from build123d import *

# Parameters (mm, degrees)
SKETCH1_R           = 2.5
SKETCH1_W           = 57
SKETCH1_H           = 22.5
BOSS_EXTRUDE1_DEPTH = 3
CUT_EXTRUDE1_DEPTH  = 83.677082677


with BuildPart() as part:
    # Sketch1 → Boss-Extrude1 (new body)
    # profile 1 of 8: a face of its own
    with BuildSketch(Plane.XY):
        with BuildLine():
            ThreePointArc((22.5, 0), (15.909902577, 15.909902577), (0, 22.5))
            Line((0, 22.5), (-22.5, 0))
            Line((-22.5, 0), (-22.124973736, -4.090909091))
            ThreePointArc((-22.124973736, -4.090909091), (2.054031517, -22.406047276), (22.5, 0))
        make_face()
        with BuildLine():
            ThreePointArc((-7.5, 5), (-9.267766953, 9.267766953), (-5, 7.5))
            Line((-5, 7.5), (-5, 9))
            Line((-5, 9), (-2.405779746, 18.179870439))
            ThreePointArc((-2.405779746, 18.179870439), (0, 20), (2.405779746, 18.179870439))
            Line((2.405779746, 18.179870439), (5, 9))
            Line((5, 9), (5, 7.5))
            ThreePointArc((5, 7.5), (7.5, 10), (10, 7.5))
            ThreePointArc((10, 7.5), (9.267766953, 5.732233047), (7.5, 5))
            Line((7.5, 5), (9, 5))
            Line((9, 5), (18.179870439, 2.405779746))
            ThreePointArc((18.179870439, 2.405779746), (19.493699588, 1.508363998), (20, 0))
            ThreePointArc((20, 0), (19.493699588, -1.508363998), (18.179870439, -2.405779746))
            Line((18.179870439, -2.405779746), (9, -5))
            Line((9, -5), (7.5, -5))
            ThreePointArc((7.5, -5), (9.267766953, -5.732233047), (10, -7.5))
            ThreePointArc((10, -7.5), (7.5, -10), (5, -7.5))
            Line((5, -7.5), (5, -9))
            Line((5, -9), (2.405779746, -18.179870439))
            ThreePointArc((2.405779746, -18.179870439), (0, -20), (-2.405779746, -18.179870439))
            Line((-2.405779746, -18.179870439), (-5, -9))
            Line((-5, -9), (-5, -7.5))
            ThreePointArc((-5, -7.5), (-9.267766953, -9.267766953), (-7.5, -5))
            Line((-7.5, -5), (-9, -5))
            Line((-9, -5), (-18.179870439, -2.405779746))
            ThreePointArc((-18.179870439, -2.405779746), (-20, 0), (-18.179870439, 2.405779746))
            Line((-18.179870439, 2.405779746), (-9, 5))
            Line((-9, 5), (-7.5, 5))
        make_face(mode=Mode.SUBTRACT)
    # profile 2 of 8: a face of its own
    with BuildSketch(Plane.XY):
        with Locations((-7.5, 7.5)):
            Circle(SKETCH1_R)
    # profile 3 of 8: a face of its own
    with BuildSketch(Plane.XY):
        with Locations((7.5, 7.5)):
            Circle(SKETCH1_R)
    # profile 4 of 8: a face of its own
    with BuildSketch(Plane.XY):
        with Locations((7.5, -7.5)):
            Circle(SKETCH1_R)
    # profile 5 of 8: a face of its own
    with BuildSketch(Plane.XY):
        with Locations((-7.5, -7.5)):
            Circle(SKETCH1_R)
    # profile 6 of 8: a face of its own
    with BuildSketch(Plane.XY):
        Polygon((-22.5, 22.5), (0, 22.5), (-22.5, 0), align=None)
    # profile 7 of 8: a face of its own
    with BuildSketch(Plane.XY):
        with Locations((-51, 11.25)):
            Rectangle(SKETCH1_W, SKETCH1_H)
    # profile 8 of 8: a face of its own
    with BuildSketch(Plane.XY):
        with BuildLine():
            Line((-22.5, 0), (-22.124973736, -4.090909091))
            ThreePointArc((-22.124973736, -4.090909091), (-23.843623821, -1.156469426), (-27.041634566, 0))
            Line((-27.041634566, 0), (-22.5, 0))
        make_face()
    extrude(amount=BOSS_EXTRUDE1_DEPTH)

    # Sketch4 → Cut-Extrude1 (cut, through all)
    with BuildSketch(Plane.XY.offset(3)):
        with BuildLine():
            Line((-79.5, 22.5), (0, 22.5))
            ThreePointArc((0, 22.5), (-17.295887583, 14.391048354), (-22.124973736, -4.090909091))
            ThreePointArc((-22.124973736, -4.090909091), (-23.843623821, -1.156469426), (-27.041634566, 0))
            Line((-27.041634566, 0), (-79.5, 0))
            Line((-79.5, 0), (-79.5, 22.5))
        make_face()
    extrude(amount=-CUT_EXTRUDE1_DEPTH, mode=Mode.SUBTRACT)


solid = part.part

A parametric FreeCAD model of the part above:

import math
import FreeCAD as App
import Part
import Sketcher
from FreeCAD import Vector

doc = App.newDocument("Part")
body = doc.addObject("PartDesign::Body", "Body")

# Sketch on XY plane
sketch1 = body.newObject("Sketcher::SketchObject", "Sketch")
sketch1.AttachmentSupport = (doc.getObject("XY_Plane"), [""])
sketch1.MapMode = "FlatFace"
sketch1.addGeometry(Part.ArcOfCircle(Part.Circle(Vector(0, 0, 0), Vector(0, 0, 1), 22.5), math.radians(0), math.radians(90)), False)
sketch1.addGeometry(Part.LineSegment(Vector(0, 22.5, 0), Vector(-79.5, 22.5, 0)), False)
sketch1.addGeometry(Part.LineSegment(Vector(-79.5, 22.5, 0), Vector(-79.5, 0, 0)), False)
sketch1.addGeometry(Part.LineSegment(Vector(-79.5, 0, 0), Vector(-27, 0, 0)), False)
sketch1.addGeometry(Part.ArcOfCircle(Part.Circle(Vector(-27, -5, 0), Vector(0, 0, 1), 5), math.radians(10), math.radians(90)), False)
sketch1.addGeometry(Part.ArcOfCircle(Part.Circle(Vector(0, 0, 0), Vector(0, 0, 1), 22.5), math.radians(-170), math.radians(0)), False)
sketch1.addGeometry(Part.LineSegment(Vector(-9, 5, 0), Vector(-7.5, 5, 0)), False)
sketch1.addGeometry(Part.ArcOfCircle(Part.Circle(Vector(-7.5, 7.5, 0), Vector(0, 0, 1), 2.5), math.radians(-90), math.radians(0)), False)
sketch1.addGeometry(Part.LineSegment(Vector(-5, 7.5, 0), Vector(-5, 9, 0)), False)
sketch1.addGeometry(Part.LineSegment(Vector(-5, 9, 0), Vector(-2.4, 18.2, 0)), False)
sketch1.addGeometry(Part.ArcOfCircle(Part.Circle(Vector(0, 17.5, 0), Vector(0, 0, 1), 2.5), math.radians(16), math.radians(164)), False)
sketch1.addGeometry(Part.LineSegment(Vector(2.4, 18.2, 0), Vector(5, 9, 0)), False)
sketch1.addGeometry(Part.LineSegment(Vector(5, 9, 0), Vector(5, 7.5, 0)), False)
sketch1.addGeometry(Part.ArcOfCircle(Part.Circle(Vector(7.5, 7.5, 0), Vector(0, 0, 1), 2.5), math.radians(180), math.radians(270)), False)
sketch1.addGeometry(Part.LineSegment(Vector(7.5, 5, 0), Vector(9, 5, 0)), False)
sketch1.addGeometry(Part.LineSegment(Vector(9, 5, 0), Vector(18.2, 2.4, 0)), False)
sketch1.addGeometry(Part.ArcOfCircle(Part.Circle(Vector(17.5, 0, 0), Vector(0, 0, 1), 2.5), math.radians(0), math.radians(74)), False)
sketch1.addGeometry(Part.ArcOfCircle(Part.Circle(Vector(17.5, 0, 0), Vector(0, 0, 1), 2.5), math.radians(-74), math.radians(0)), False)
sketch1.addGeometry(Part.LineSegment(Vector(18.2, -2.4, 0), Vector(9, -5, 0)), False)
sketch1.addGeometry(Part.LineSegment(Vector(9, -5, 0), Vector(7.5, -5, 0)), False)
sketch1.addGeometry(Part.ArcOfCircle(Part.Circle(Vector(7.5, -7.5, 0), Vector(0, 0, 1), 2.5), math.radians(90), math.radians(180)), False)
sketch1.addGeometry(Part.LineSegment(Vector(5, -7.5, 0), Vector(5, -9, 0)), False)
sketch1.addGeometry(Part.LineSegment(Vector(5, -9, 0), Vector(2.4, -18.2, 0)), False)
sketch1.addGeometry(Part.ArcOfCircle(Part.Circle(Vector(0, -17.5, 0), Vector(0, 0, 1), 2.5), math.radians(-164), math.radians(-16)), False)
sketch1.addGeometry(Part.LineSegment(Vector(-2.4, -18.2, 0), Vector(-5, -9, 0)), False)
sketch1.addGeometry(Part.LineSegment(Vector(-5, -9, 0), Vector(-5, -7.5, 0)), False)
sketch1.addGeometry(Part.ArcOfCircle(Part.Circle(Vector(-7.5, -7.5, 0), Vector(0, 0, 1), 2.5), math.radians(0), math.radians(90)), False)
sketch1.addGeometry(Part.LineSegment(Vector(-7.5, -5, 0), Vector(-9, -5, 0)), False)
sketch1.addGeometry(Part.LineSegment(Vector(-9, -5, 0), Vector(-18.2, -2.4, 0)), False)
sketch1.addGeometry(Part.ArcOfCircle(Part.Circle(Vector(-17.5, 0, 0), Vector(0, 0, 1), 2.5), math.radians(106), math.radians(254)), False)
sketch1.addGeometry(Part.LineSegment(Vector(-18.2, 2.4, 0), Vector(-9, 5, 0)), False)
sketch1.addConstraint(Sketcher.Constraint("Tangent", 0, 2, 1, 1))
sketch1.addConstraint(Sketcher.Constraint("Coincident", 1, 2, 2, 1))
sketch1.addConstraint(Sketcher.Constraint("Coincident", 2, 2, 3, 1))
sketch1.addConstraint(Sketcher.Constraint("Tangent", 3, 2, 4, 2))
sketch1.addConstraint(Sketcher.Constraint("Tangent", 4, 1, 5, 1))
sketch1.addConstraint(Sketcher.Constraint("Tangent", 5, 2, 0, 1))
sketch1.addConstraint(Sketcher.Constraint("Tangent", 6, 2, 7, 1))
sketch1.addConstraint(Sketcher.Constraint("Tangent", 7, 2, 8, 1))
sketch1.addConstraint(Sketcher.Constraint("Coincident", 8, 2, 9, 1))
sketch1.addConstraint(Sketcher.Constraint("Tangent", 9, 2, 10, 2))
sketch1.addConstraint(Sketcher.Constraint("Tangent", 10, 1, 11, 1))
sketch1.addConstraint(Sketcher.Constraint("Coincident", 11, 2, 12, 1))
sketch1.addConstraint(Sketcher.Constraint("Tangent", 12, 2, 13, 1))
sketch1.addConstraint(Sketcher.Constraint("Tangent", 13, 2, 14, 1))
sketch1.addConstraint(Sketcher.Constraint("Coincident", 14, 2, 15, 1))
sketch1.addConstraint(Sketcher.Constraint("Tangent", 15, 2, 16, 2))
sketch1.addConstraint(Sketcher.Constraint("Tangent", 16, 1, 17, 2))
sketch1.addConstraint(Sketcher.Constraint("Tangent", 17, 1, 18, 1))
sketch1.addConstraint(Sketcher.Constraint("Coincident", 18, 2, 19, 1))
sketch1.addConstraint(Sketcher.Constraint("Tangent", 19, 2, 20, 1))
sketch1.addConstraint(Sketcher.Constraint("Tangent", 20, 2, 21, 1))
sketch1.addConstraint(Sketcher.Constraint("Coincident", 21, 2, 22, 1))
sketch1.addConstraint(Sketcher.Constraint("Tangent", 22, 2, 23, 2))
sketch1.addConstraint(Sketcher.Constraint("Tangent", 23, 1, 24, 1))
sketch1.addConstraint(Sketcher.Constraint("Coincident", 24, 2, 25, 1))
sketch1.addConstraint(Sketcher.Constraint("Tangent", 25, 2, 26, 1))
sketch1.addConstraint(Sketcher.Constraint("Tangent", 26, 2, 27, 1))
sketch1.addConstraint(Sketcher.Constraint("Coincident", 27, 2, 28, 1))
sketch1.addConstraint(Sketcher.Constraint("Tangent", 28, 2, 29, 2))
sketch1.addConstraint(Sketcher.Constraint("Tangent", 29, 1, 30, 1))
sketch1.addConstraint(Sketcher.Constraint("Coincident", 30, 2, 6, 1))
sketch1.addConstraint(Sketcher.Constraint("Horizontal", 1))
sketch1.addConstraint(Sketcher.Constraint("Vertical", 2))
sketch1.addConstraint(Sketcher.Constraint("Horizontal", 3))
sketch1.addConstraint(Sketcher.Constraint("Horizontal", 6))
sketch1.addConstraint(Sketcher.Constraint("Vertical", 8))
sketch1.addConstraint(Sketcher.Constraint("Vertical", 12))
sketch1.addConstraint(Sketcher.Constraint("Horizontal", 14))
sketch1.addConstraint(Sketcher.Constraint("Horizontal", 19))
sketch1.addConstraint(Sketcher.Constraint("Vertical", 21))
sketch1.addConstraint(Sketcher.Constraint("Vertical", 25))
sketch1.addConstraint(Sketcher.Constraint("Horizontal", 27))
sketch1.addConstraint(Sketcher.Constraint("Coincident", 0, 3, -1, 1))
sketch1.addConstraint(Sketcher.Constraint("Equal", 0, 5))
sketch1.addConstraint(Sketcher.Constraint("Equal", 7, 10))
sketch1.addConstraint(Sketcher.Constraint("Equal", 10, 13))
sketch1.addConstraint(Sketcher.Constraint("Equal", 13, 16))
sketch1.addConstraint(Sketcher.Constraint("Equal", 16, 17))
sketch1.addConstraint(Sketcher.Constraint("Equal", 17, 20))
sketch1.addConstraint(Sketcher.Constraint("Equal", 20, 23))
sketch1.addConstraint(Sketcher.Constraint("Equal", 23, 26))
sketch1.addConstraint(Sketcher.Constraint("Equal", 26, 29))
sketch1.addConstraint(Sketcher.Constraint("Symmetric", 7, 3, 20, 3, -1, 1))
sketch1.addConstraint(Sketcher.Constraint("Symmetric", 10, 3, 23, 3, -1, 1))
sketch1.addConstraint(Sketcher.Constraint("Symmetric", 13, 3, 26, 3, -1, 1))
sketch1.addConstraint(Sketcher.Constraint("Symmetric", 16, 3, 29, 3, -1, 1))
sketch1.addConstraint(Sketcher.Constraint("Symmetric", 7, 3, 13, 3, -2))
sketch1.addConstraint(Sketcher.Constraint("Symmetric", 9, 2, 10, 1, -2))
sketch1.addConstraint(Sketcher.Constraint("Symmetric", 17, 1, 28, 2, -2))
sketch1.addConstraint(Sketcher.Constraint("PointOnObject", 2, 2, -1))
sketch1.addConstraint(Sketcher.Constraint("PointOnObject", 5, 2, -1))
sketch1.addConstraint(Sketcher.Constraint("PointOnObject", 16, 1, -1))
sketch1.addConstraint(Sketcher.Constraint("Perpendicular", 9, 15))
sketch1.addConstraint(Sketcher.Constraint("Perpendicular", 11, 18))
sketch1.addConstraint(Sketcher.Constraint("Perpendicular", 15, 22))
sketch1.addConstraint(Sketcher.Constraint("Perpendicular", 18, 24))
sketch1.addConstraint(Sketcher.Constraint("Perpendicular", 24, 30))
sketch1.addConstraint(Sketcher.Constraint("Horizontal", 4, 3, 18, 2))
sketch1.addConstraint(Sketcher.Constraint("Equal", 27, 8))
sketch1.addConstraint(Sketcher.Constraint("Equal", 11, 15))
sketch1.addConstraint(Sketcher.Constraint("Radius", 4, 5.0))
sketch1.addConstraint(Sketcher.Constraint("Radius", 0, 22.5))
sketch1.addConstraint(Sketcher.Constraint("Radius", 7, 2.5))
sketch1.addConstraint(Sketcher.Constraint("DistanceX", 1, 2, 1, 1, 79.5))
sketch1.addConstraint(Sketcher.Constraint("DistanceX", 6, 1, 6, 2, 1.5))
sketch1.addConstraint(Sketcher.Constraint("DistanceX", -1, 1, 16, 1, 20.0))
pad1 = body.newObject("PartDesign::Pad", "Pad")
pad1.Profile = sketch1
pad1.Length = 3

# Sketch on XY plane
sketch2 = body.newObject("Sketcher::SketchObject", "Sketch001")
sketch2.AttachmentSupport = (doc.getObject("XY_Plane"), [""])
sketch2.MapMode = "FlatFace"
sketch2.AttachmentOffset = App.Placement(Vector(0, 0, 3), App.Rotation())
sketch2.addGeometry(Part.LineSegment(Vector(0, 22, 0), Vector(-80, 22, 0)), False)
sketch2.addGeometry(Part.LineSegment(Vector(-80, 22, 0), Vector(-80, 0, 0)), False)
sketch2.addGeometry(Part.LineSegment(Vector(-80, 0, 0), Vector(-27, 0, 0)), False)
sketch2.addGeometry(Part.ArcOfCircle(Part.Circle(Vector(-27, -5, 0), Vector(0, 0, 1), 5), math.radians(10), math.radians(90)), False)
sketch2.addGeometry(Part.ArcOfCircle(Part.Circle(Vector(0, 0, 0), Vector(0, 0, 1), 22), math.radians(90), math.radians(190)), False)
sketch2.addConstraint(Sketcher.Constraint("Coincident", 0, 2, 1, 1))
sketch2.addConstraint(Sketcher.Constraint("Coincident", 1, 2, 2, 1))
sketch2.addConstraint(Sketcher.Constraint("Tangent", 2, 2, 3, 2))
sketch2.addConstraint(Sketcher.Constraint("Tangent", 3, 1, 4, 2))
sketch2.addConstraint(Sketcher.Constraint("Tangent", 4, 1, 0, 1))
sketch2.addConstraint(Sketcher.Constraint("Horizontal", 0))
sketch2.addConstraint(Sketcher.Constraint("Vertical", 1))
sketch2.addConstraint(Sketcher.Constraint("Horizontal", 2))
sketch2.addConstraint(Sketcher.Constraint("Coincident", 4, 3, -1, 1))
sketch2.addConstraint(Sketcher.Constraint("PointOnObject", 1, 2, -1))
sketch2.addConstraint(Sketcher.Constraint("Radius", 3, 5.0))
sketch2.addConstraint(Sketcher.Constraint("Radius", 4, 22.5))
sketch2.addConstraint(Sketcher.Constraint("DistanceX", 0, 2, 0, 1, 79.5))
pocket1 = body.newObject("PartDesign::Pocket", "Pocket")
pocket1.Profile = sketch2
pocket1.Type = "ThroughAll"

doc.recompute()
